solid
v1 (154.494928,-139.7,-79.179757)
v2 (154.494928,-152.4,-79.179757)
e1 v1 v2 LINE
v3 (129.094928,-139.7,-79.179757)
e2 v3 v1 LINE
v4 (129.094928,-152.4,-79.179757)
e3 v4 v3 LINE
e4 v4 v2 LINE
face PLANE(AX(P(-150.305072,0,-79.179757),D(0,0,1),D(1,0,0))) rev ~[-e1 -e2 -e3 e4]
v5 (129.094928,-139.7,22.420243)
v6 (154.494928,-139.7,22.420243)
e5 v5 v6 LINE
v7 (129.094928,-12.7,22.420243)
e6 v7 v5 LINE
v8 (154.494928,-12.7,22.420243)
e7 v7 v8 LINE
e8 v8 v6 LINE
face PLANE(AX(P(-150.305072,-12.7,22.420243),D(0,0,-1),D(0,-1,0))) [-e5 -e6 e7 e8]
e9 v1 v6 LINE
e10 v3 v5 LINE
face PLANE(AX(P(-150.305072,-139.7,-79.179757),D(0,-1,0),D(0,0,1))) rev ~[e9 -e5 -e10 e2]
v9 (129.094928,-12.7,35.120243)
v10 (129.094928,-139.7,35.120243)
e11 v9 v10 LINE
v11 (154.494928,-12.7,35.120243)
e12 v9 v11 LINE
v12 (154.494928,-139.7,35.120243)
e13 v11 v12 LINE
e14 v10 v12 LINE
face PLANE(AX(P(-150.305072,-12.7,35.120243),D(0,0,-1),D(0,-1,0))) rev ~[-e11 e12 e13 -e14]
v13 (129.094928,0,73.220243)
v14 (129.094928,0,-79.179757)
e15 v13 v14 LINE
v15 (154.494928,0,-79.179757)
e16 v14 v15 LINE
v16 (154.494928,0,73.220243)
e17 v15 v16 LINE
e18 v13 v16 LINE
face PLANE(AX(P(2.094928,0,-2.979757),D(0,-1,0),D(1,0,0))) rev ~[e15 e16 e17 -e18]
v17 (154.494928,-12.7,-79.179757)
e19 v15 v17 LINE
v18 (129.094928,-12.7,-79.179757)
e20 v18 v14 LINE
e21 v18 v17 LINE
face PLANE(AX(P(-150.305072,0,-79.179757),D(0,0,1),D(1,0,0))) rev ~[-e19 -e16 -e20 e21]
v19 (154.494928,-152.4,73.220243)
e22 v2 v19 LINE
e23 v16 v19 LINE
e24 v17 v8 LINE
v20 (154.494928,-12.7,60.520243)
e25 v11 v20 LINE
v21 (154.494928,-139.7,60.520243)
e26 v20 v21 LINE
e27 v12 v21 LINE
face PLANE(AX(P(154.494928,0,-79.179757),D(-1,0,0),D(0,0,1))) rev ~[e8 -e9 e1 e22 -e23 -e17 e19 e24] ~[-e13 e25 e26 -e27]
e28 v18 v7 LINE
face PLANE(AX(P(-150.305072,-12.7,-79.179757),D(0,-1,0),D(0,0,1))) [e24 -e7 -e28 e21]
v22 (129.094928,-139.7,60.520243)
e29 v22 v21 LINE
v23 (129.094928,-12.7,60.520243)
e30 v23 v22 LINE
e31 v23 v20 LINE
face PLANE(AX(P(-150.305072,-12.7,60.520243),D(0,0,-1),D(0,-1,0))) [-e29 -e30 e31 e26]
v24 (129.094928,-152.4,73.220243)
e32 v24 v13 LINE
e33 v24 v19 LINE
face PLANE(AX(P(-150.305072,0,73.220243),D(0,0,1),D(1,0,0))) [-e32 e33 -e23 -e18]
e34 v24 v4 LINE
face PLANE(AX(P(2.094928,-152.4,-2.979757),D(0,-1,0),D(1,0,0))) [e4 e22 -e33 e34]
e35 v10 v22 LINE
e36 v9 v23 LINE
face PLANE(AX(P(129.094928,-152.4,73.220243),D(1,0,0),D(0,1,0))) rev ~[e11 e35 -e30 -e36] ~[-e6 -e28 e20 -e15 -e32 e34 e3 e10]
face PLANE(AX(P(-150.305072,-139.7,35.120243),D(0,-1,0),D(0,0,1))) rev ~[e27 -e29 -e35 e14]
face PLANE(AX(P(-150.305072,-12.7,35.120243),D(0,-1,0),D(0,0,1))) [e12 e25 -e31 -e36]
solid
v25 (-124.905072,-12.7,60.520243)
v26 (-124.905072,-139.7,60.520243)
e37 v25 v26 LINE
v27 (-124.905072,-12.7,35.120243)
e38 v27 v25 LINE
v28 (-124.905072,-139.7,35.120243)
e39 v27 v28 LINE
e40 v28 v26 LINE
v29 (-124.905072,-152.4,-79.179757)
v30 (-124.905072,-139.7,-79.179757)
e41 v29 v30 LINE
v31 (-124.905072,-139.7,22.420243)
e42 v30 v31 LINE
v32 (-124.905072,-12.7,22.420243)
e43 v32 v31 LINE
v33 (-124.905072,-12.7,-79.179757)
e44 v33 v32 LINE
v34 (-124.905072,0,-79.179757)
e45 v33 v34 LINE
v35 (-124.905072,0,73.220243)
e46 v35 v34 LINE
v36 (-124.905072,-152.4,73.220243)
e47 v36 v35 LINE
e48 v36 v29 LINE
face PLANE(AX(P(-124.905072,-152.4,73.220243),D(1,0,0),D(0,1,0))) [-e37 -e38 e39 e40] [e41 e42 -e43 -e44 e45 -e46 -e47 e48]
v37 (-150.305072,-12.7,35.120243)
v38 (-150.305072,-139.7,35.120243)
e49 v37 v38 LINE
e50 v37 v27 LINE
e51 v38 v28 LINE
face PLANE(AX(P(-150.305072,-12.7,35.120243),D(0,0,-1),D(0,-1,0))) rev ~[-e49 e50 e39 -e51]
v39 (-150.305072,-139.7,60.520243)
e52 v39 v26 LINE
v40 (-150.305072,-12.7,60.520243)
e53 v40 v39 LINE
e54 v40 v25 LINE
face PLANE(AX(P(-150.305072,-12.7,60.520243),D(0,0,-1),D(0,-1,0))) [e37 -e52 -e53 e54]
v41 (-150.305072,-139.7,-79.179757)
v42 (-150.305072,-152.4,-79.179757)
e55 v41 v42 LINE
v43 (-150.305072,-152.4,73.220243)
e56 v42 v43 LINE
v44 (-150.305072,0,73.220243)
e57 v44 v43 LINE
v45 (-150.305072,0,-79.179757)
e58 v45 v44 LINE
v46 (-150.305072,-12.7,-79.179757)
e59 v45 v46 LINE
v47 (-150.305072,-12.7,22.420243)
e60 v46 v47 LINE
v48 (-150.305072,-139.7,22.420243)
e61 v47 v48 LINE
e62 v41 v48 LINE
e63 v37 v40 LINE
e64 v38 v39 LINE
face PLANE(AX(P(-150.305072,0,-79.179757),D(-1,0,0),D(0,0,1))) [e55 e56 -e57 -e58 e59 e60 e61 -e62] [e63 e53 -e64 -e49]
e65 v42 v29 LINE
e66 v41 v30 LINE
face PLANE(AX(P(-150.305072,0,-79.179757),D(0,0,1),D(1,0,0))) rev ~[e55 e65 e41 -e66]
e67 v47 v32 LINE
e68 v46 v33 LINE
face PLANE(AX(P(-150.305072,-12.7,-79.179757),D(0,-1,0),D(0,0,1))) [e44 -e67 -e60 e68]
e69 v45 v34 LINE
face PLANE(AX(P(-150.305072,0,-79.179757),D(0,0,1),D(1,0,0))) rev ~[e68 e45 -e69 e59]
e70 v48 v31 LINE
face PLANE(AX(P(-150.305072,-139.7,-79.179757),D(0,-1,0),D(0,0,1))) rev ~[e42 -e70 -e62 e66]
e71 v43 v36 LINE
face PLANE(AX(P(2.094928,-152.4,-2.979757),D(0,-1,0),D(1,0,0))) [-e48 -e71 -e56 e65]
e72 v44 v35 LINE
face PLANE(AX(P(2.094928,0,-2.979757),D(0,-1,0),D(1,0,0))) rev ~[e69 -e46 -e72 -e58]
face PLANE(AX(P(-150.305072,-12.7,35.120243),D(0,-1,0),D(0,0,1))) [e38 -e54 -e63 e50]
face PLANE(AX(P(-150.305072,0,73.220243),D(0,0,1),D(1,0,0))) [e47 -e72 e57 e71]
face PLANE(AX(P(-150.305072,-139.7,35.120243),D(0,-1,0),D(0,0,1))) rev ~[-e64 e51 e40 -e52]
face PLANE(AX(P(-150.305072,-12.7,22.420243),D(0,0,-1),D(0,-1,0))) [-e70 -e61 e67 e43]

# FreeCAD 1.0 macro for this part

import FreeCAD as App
import Part
import Sketcher
Q = App.Units.Quantity

doc = App.newDocument("Part")
params = doc.addObject("Spreadsheet::Sheet", "Params")
for row, (alias, value) in enumerate([
    ("sketch1_width", "12 in"),
    ("sketch1_height", "6 in"),
    ("pad1_length", "6 in"),
    ("sketch2_width", "5 in"),
    ("sketch2_height", "1 in"),
    ("sketch2_height2", "4 in"),
    ("pocket1_length", "12 in"),
    ("sketch3_width", "10 in"),
    ("sketch3_height", "6 in"),
    ("pocket2_length", "6 in"),
], start=1):
    params.set(f"A{row}", alias)
    params.set(f"B{row}", "=" + value)
    params.setAlias(f"B{row}", alias)

body = doc.addObject("PartDesign::Body", "Body")
body.AllowCompound = True

# Sketch on XZ plane
sketch1 = body.newObject("Sketcher::SketchObject", "Sketch")
sketch1.AttachmentSupport = (doc.getObject("XZ_Plane"), [""])
sketch1.MapMode = "FlatFace"
sketch1.addGeometry([
    Part.LineSegment(App.Vector(-150.305072, 73.220243, 0), App.Vector(-150.305072, -79.179757, 0)),
    Part.LineSegment(App.Vector(-150.305072, -79.179757, 0), App.Vector(154.494928, -79.179757, 0)),
    Part.LineSegment(App.Vector(154.494928, -79.179757, 0), App.Vector(154.494928, 73.220243, 0)),
    Part.LineSegment(App.Vector(154.494928, 73.220243, 0), App.Vector(-150.305072, 73.220243, 0)),
], False)
sketch1.addConstraint([
    Sketcher.Constraint("Coincident", 0, 2, 1, 1),
    Sketcher.Constraint("Coincident", 1, 2, 2, 1),
    Sketcher.Constraint("Coincident", 2, 2, 3, 1),
    Sketcher.Constraint("Coincident", 3, 2, 0, 1),
    Sketcher.Constraint("Vertical", 0),
    Sketcher.Constraint("Horizontal", 1),
    Sketcher.Constraint("Vertical", 2),
    Sketcher.Constraint("Horizontal", 3),
    Sketcher.Constraint("DistanceX", 1, 1, 1, 2, Q("12 in")),
    Sketcher.Constraint("DistanceY", 0, 2, 0, 1, Q("6 in")),
    Sketcher.Constraint("DistanceX", 0, 2, -1, 1, Q("150.305072 mm")),
    Sketcher.Constraint("DistanceY", 0, 2, -1, 1, Q("79.179757 mm")),
])
sketch1.setExpression("Constraints[8]", "Params.sketch1_width")
sketch1.setExpression("Constraints[9]", "Params.sketch1_height")
pad1 = body.newObject("PartDesign::Pad", "Pad")
pad1.Profile = sketch1
pad1.setExpression("Length", "Params.pad1_length")

# Sketch on YZ plane
sketch2 = body.newObject("Sketcher::SketchObject", "Sketch001")
sketch2.AttachmentSupport = (doc.getObject("YZ_Plane"), [""])
sketch2.MapMode = "FlatFace"
sketch2.AttachmentOffset = App.Placement(App.Vector(0, 0, -150.305072), App.Rotation())
sketch2.addGeometry([
    Part.LineSegment(App.Vector(-12.7, 60.520243, 0), App.Vector(-12.7, 35.120243, 0)),  # 0
    Part.LineSegment(App.Vector(-12.7, 35.120243, 0), App.Vector(-139.7, 35.120243, 0)),  # 1
    Part.LineSegment(App.Vector(-139.7, 35.120243, 0), App.Vector(-139.7, 60.520243, 0)),  # 2
    Part.LineSegment(App.Vector(-139.7, 60.520243, 0), App.Vector(-12.7, 60.520243, 0)),  # 3
    Part.LineSegment(App.Vector(-12.7, 22.420243, 0), App.Vector(-12.7, -79.179757, 0)),  # 4
    Part.LineSegment(App.Vector(-12.7, -79.179757, 0), App.Vector(-139.7, -79.179757, 0)),  # 5
    Part.LineSegment(App.Vector(-139.7, -79.179757, 0), App.Vector(-139.7, 22.420243, 0)),  # 6
    Part.LineSegment(App.Vector(-139.7, 22.420243, 0), App.Vector(-12.7, 22.420243, 0)),  # 7
], False)
sketch2.addConstraint([
    Sketcher.Constraint("Coincident", 0, 2, 1, 1),
    Sketcher.Constraint("Coincident", 1, 2, 2, 1),
    Sketcher.Constraint("Coincident", 2, 2, 3, 1),
    Sketcher.Constraint("Coincident", 3, 2, 0, 1),
    Sketcher.Constraint("Coincident", 4, 2, 5, 1),
    Sketcher.Constraint("Coincident", 5, 2, 6, 1),
    Sketcher.Constraint("Coincident", 6, 2, 7, 1),
    Sketcher.Constraint("Coincident", 7, 2, 4, 1),
    Sketcher.Constraint("Vertical", 0),
    Sketcher.Constraint("Horizontal", 1),
    Sketcher.Constraint("Vertical", 2),
    Sketcher.Constraint("Horizontal", 3),
    Sketcher.Constraint("Vertical", 4),
    Sketcher.Constraint("Horizontal", 5),
    Sketcher.Constraint("Vertical", 6),
    Sketcher.Constraint("Horizontal", 7),
    Sketcher.Constraint("Vertical", 3, 2, 4, 2),
    Sketcher.Constraint("Vertical", 2, 2, 5, 2),
    Sketcher.Constraint("DistanceX", 1, 2, 1, 1, Q("5 in")),
    Sketcher.Constraint("DistanceY", 0, 2, 0, 1, Q("1 in")),
    Sketcher.Constraint("DistanceY", 4, 2, 4, 1, Q("4 in")),
    Sketcher.Constraint("DistanceX", 0, 2, -1, 1, Q("0.5 in")),
    Sketcher.Constraint("DistanceY", 4, 2, 0, 2, Q("4.5 in")),
    Sketcher.Constraint("DistanceY", -1, 1, 0, 2, Q("35.120243 mm")),
])
sketch2.setExpression("Constraints[18]", "Params.sketch2_width")
sketch2.setExpression("Constraints[19]", "Params.sketch2_height")
sketch2.setExpression("Constraints[20]", "Params.sketch2_height2")
pocket1 = body.newObject("PartDesign::Pocket", "Pocket")
pocket1.Profile = sketch2
pocket1.setExpression("Length", "Params.pocket1_length")
pocket1.Reversed = True

# Sketch on XY plane
sketch3 = body.newObject("Sketcher::SketchObject", "Sketch002")
sketch3.AttachmentSupport = (doc.getObject("XY_Plane"), [""])
sketch3.MapMode = "FlatFace"
sketch3.AttachmentOffset = App.Placement(App.Vector(0, 0, 73.220243), App.Rotation())
sketch3.addGeometry([
    Part.LineSegment(App.Vector(-124.905072, 0, 0), App.Vector(-124.905072, -152.4, 0)),
    Part.LineSegment(App.Vector(-124.905072, -152.4, 0), App.Vector(129.094928, -152.4, 0)),
    Part.LineSegment(App.Vector(129.094928, -152.4, 0), App.Vector(129.094928, 0, 0)),
    Part.LineSegment(App.Vector(129.094928, 0, 0), App.Vector(-124.905072, 0, 0)),
], False)
sketch3.addConstraint([
    Sketcher.Constraint("Coincident", 0, 2, 1, 1),
    Sketcher.Constraint("Coincident", 1, 2, 2, 1),
    Sketcher.Constraint("Coincident", 2, 2, 3, 1),
    Sketcher.Constraint("Coincident", 3, 2, 0, 1),
    Sketcher.Constraint("Vertical", 0),
    Sketcher.Constraint("Horizontal", 1),
    Sketcher.Constraint("Vertical", 2),
    Sketcher.Constraint("Horizontal", 3),
    Sketcher.Constraint("PointOnObject", 2, 2, -1),
    Sketcher.Constraint("DistanceX", 1, 1, 1, 2, Q("10 in")),
    Sketcher.Constraint("DistanceY", 0, 2, 0, 1, Q("6 in")),
    Sketcher.Constraint("DistanceX", 0, 2, -1, 1, Q("124.905072 mm")),
])
sketch3.setExpression("Constraints[9]", "Params.sketch3_width")
sketch3.setExpression("Constraints[10]", "Params.sketch3_height")
pocket2 = body.newObject("PartDesign::Pocket", "Pocket001")
pocket2.Profile = sketch3
pocket2.setExpression("Length", "Params.pocket2_length")

doc.recompute()
